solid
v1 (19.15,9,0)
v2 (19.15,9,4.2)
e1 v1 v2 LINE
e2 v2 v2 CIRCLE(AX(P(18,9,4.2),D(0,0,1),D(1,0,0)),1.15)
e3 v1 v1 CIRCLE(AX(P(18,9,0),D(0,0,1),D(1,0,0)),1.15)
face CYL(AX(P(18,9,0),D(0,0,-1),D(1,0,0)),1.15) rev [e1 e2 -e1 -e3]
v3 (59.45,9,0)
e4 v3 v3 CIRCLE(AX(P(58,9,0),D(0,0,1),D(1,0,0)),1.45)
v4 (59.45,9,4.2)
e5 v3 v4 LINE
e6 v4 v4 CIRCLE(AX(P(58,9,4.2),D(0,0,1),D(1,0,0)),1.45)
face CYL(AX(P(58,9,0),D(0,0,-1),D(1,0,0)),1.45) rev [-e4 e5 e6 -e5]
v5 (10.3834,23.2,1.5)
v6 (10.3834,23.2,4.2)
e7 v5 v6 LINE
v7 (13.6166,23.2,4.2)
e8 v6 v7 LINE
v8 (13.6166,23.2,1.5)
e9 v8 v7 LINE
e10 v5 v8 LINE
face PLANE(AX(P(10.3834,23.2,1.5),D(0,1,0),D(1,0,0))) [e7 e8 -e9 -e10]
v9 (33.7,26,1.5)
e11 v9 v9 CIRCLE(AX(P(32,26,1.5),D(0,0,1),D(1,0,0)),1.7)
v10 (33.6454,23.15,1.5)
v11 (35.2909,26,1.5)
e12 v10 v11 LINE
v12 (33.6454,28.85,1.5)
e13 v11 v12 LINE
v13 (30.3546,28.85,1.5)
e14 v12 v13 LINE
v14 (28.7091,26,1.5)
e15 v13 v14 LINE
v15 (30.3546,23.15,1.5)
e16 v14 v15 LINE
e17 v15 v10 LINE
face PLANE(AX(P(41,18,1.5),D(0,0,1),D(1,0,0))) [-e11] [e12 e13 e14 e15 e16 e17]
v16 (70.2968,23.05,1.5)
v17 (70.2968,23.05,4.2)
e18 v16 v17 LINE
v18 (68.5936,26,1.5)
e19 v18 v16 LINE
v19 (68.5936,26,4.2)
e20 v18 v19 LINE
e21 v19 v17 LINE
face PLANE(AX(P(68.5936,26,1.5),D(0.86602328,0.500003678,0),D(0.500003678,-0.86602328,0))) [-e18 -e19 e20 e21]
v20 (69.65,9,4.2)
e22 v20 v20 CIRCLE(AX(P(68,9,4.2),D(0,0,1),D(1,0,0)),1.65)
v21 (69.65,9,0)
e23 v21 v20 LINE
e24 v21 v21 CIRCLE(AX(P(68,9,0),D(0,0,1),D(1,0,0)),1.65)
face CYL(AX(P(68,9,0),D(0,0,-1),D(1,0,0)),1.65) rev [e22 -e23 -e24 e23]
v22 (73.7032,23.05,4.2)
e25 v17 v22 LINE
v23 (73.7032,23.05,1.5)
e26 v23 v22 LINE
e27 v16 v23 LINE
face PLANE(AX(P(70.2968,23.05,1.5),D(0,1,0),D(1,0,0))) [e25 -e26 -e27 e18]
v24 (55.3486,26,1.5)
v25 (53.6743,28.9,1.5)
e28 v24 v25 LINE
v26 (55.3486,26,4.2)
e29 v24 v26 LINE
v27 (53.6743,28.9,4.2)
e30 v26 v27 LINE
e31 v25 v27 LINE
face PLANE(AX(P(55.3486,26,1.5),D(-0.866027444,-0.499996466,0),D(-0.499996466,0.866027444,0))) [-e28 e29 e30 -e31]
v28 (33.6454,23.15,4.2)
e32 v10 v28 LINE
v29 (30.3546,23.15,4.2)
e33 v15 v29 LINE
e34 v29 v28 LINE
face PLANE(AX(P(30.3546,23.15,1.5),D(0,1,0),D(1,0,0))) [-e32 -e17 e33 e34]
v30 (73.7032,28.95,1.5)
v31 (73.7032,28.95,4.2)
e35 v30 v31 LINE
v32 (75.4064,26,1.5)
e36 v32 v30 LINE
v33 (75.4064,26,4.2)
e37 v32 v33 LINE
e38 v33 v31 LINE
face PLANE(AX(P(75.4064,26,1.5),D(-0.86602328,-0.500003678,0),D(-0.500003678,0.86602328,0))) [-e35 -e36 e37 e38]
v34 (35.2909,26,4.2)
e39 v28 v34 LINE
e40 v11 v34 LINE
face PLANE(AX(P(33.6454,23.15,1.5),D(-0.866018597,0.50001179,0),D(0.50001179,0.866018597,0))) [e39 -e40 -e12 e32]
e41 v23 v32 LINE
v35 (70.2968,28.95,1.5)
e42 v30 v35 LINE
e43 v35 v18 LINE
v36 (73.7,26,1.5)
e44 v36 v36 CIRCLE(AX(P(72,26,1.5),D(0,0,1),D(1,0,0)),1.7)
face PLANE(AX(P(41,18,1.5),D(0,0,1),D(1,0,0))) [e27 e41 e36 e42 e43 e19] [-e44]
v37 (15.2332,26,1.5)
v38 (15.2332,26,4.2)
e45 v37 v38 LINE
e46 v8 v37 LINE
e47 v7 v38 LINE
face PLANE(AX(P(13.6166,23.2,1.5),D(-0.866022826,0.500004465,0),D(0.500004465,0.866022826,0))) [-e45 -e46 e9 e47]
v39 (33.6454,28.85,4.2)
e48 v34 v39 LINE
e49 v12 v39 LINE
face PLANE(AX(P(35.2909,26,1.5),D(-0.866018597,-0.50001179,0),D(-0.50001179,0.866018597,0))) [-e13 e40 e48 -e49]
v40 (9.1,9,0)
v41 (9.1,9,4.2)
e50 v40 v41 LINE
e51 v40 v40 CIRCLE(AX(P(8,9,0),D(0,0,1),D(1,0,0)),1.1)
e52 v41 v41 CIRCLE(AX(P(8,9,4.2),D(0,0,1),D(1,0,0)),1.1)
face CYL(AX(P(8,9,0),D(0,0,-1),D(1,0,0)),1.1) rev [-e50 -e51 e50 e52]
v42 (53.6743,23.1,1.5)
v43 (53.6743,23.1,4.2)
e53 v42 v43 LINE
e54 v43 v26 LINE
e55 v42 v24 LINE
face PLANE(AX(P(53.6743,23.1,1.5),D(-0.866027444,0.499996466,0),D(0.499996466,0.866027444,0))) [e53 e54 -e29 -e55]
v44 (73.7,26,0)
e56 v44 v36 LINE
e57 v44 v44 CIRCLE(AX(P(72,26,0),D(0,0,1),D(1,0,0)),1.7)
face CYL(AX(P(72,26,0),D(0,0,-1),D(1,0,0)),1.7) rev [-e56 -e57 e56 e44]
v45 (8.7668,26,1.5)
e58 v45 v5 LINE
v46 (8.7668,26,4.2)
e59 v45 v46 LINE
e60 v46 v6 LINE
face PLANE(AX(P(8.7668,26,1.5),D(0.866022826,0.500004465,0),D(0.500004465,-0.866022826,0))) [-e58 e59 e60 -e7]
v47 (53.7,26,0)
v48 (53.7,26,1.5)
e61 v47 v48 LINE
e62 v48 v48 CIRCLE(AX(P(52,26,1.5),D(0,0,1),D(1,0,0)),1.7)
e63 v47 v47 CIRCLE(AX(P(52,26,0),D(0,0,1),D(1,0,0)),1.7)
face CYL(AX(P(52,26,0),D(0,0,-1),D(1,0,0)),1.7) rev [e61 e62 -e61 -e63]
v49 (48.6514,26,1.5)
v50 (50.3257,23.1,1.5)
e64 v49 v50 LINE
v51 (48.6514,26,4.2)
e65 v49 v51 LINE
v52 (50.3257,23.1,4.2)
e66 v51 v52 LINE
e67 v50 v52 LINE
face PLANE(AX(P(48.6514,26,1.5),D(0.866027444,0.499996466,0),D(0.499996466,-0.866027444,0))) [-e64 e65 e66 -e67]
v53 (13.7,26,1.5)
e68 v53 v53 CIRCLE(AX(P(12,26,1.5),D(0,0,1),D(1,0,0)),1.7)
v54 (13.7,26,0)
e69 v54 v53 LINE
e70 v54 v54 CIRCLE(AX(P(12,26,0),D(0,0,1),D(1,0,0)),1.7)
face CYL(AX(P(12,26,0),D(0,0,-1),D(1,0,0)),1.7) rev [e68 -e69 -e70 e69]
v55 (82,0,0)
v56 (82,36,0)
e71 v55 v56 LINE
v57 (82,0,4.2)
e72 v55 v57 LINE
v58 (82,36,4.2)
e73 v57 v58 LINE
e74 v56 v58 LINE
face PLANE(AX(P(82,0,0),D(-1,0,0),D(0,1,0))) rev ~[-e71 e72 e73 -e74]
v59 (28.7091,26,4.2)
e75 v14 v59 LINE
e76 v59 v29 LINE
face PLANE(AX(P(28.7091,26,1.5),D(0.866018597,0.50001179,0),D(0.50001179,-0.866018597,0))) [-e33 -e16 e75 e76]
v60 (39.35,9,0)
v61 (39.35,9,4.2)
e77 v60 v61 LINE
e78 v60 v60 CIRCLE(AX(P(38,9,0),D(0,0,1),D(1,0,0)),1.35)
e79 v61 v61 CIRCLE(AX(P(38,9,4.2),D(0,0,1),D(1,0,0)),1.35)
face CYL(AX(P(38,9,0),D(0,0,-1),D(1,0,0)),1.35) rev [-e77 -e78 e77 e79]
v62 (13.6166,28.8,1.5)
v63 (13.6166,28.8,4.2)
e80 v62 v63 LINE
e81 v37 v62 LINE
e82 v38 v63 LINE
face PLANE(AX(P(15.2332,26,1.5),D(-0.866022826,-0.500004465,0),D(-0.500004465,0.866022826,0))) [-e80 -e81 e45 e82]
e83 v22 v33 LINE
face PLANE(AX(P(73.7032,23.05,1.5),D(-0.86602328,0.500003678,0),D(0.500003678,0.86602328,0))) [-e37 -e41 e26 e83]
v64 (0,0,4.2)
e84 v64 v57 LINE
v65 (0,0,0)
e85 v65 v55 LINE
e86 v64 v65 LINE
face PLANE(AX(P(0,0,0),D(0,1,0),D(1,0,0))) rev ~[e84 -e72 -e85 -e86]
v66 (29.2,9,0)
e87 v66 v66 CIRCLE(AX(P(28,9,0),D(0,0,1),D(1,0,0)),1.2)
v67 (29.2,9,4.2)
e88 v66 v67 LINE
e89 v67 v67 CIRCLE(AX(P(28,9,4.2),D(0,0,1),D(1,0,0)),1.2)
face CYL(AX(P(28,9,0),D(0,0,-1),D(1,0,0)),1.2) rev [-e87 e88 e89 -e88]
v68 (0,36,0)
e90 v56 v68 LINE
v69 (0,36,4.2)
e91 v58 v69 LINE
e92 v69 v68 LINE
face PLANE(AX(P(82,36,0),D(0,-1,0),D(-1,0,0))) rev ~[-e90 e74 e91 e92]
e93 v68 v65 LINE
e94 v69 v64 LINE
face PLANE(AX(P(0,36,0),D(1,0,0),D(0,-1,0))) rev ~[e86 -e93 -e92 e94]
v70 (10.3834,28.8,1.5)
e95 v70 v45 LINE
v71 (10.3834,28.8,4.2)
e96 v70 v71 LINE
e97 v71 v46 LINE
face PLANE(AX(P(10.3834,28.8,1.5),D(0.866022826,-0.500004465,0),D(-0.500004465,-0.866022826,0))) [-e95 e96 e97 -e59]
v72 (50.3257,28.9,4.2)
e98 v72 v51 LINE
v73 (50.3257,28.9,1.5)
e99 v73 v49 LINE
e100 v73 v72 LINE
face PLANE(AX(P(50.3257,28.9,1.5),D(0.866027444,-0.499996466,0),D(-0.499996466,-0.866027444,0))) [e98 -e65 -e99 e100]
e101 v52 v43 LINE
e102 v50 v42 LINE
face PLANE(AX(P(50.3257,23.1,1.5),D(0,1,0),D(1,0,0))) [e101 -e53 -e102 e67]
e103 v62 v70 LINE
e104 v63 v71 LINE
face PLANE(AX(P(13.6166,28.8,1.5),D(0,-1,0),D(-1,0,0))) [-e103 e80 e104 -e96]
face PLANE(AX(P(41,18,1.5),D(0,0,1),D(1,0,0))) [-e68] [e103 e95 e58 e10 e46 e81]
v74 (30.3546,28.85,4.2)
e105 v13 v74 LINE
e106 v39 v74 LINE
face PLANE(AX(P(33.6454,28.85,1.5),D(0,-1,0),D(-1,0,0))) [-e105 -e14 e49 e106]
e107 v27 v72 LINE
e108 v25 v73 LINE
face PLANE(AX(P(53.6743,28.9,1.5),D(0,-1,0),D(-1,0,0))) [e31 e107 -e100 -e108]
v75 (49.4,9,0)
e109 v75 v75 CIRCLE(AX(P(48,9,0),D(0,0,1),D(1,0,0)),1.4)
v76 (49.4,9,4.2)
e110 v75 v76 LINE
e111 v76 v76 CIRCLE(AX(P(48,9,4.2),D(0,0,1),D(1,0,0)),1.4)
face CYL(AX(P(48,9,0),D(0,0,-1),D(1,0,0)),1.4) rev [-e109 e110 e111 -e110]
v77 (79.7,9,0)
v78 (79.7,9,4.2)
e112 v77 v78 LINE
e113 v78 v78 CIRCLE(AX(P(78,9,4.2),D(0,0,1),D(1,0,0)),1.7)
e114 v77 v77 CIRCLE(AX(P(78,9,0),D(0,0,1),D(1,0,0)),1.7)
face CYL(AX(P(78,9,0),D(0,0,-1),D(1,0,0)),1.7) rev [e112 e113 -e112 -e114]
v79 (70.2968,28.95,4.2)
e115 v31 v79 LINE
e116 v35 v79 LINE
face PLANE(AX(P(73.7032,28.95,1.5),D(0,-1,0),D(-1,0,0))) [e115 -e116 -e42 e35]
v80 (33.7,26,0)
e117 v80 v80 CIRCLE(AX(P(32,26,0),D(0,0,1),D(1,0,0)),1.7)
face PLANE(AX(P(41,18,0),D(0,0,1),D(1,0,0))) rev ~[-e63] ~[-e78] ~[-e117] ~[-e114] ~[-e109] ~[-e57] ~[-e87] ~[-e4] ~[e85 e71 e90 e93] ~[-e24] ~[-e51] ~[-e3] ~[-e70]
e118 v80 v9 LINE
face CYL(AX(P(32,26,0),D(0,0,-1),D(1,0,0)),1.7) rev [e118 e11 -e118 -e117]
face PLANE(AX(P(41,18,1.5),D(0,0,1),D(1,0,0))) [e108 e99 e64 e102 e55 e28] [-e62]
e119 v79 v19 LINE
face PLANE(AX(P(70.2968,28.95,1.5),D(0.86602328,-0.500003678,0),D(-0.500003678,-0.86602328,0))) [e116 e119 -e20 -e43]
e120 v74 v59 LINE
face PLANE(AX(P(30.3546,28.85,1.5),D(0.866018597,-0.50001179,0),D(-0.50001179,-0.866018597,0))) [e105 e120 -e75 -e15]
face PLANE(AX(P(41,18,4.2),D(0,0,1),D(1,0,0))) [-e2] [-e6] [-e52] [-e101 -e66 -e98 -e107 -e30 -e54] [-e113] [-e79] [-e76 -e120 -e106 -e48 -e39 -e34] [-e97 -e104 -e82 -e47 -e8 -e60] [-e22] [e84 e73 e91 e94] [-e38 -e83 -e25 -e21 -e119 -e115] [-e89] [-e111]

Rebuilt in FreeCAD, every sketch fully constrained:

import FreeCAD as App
import Part
import Sketcher

V = App.Vector
Q = App.Units.Quantity


def add_polygon(sketch, points):
    """Adds a closed chain of lines whose ends are joined by coincident constraints."""
    first, n = sketch.GeometryCount, len(points)
    for a, b in zip(points, points[1:] + points[:1]):
        sketch.addGeometry(Part.LineSegment(App.Vector(*a, 0), App.Vector(*b, 0)), False)
    for i in range(n):
        sketch.addConstraint(Sketcher.Constraint("Coincident", first + i, 2, first + (i + 1) % n, 1))

doc = App.newDocument("Part")
params = doc.addObject("Spreadsheet::Sheet", "Params")
for row, (alias, value) in enumerate([
    ("sketch1_diameter", "2.2 mm"),
    ("sketch1_diameter2", "2.3 mm"),
    ("sketch1_diameter3", "2.4 mm"),
    ("sketch1_diameter4", "2.7 mm"),
    ("sketch1_diameter5", "2.8 mm"),
    ("pad1_length", "1.5 mm"),
    ("sketch2_diameter", "2.2 mm"),
    ("sketch2_diameter2", "2.3 mm"),
    ("sketch2_diameter3", "2.4 mm"),
    ("sketch2_diameter4", "2.7 mm"),
    ("sketch2_diameter5", "2.8 mm"),
    ("pad2_length", "2.7 mm"),
], start=1):
    params.set(f"A{row}", alias)
    params.set(f"B{row}", "=" + value)
    params.setAlias(f"B{row}", alias)

body = doc.addObject("PartDesign::Body", "Body")

# Sketch on XY plane
sketch1 = doc.addObject("Sketcher::SketchObject", "Sketch")
body.addObject(sketch1)
sketch1.AttachmentSupport = (doc.XY_Plane, [""])
sketch1.MapMode = "FlatFace"
add_polygon(sketch1, [(0, 36), (0, 0), (82, 0), (82, 36)])  # lines 0-3
sketch1.addGeometry(Part.Circle(V(8, 9, 0), V(0, 0, 1), 1.1), False)  # 4
sketch1.addGeometry(Part.Circle(V(18, 9, 0), V(0, 0, 1), 1.1), False)  # 5
sketch1.addGeometry(Part.Circle(V(28, 9, 0), V(0, 0, 1), 1.2), False)  # 6
sketch1.addGeometry(Part.Circle(V(38, 9, 0), V(0, 0, 1), 1.4), False)  # 7
sketch1.addGeometry(Part.Circle(V(48, 9, 0), V(0, 0, 1), 1.4), False)  # 8
sketch1.addGeometry(Part.Circle(V(58, 9, 0), V(0, 0, 1), 1.4), False)  # 9
sketch1.addGeometry(Part.Circle(V(68, 9, 0), V(0, 0, 1), 1.6), False)  # 10
sketch1.addGeometry(Part.Circle(V(78, 9, 0), V(0, 0, 1), 1.7), False)  # 11
sketch1.addGeometry(Part.Circle(V(12, 26, 0), V(0, 0, 1), 1.7), False)  # 12
sketch1.addGeometry(Part.Circle(V(32, 26, 0), V(0, 0, 1), 1.7), False)  # 13
sketch1.addGeometry(Part.Circle(V(52, 26, 0), V(0, 0, 1), 1.7), False)  # 14
sketch1.addGeometry(Part.Circle(V(72, 26, 0), V(0, 0, 1), 1.7), False)  # 15
sketch1.addConstraint([
    Sketcher.Constraint("Vertical", 0),
    Sketcher.Constraint("Horizontal", 1),
    Sketcher.Constraint("Vertical", 2),
    Sketcher.Constraint("Horizontal", 3),
    Sketcher.Constraint("Coincident", 0, 2, -1, 1),
    Sketcher.Constraint("Equal", 11, 12),
    Sketcher.Constraint("Equal", 12, 13),
    Sketcher.Constraint("Equal", 13, 14),
    Sketcher.Constraint("Equal", 14, 15),
    Sketcher.Constraint("Horizontal", 4, 3, 5, 3),
    Sketcher.Constraint("Horizontal", 5, 3, 6, 3),
    Sketcher.Constraint("Horizontal", 6, 3, 7, 3),
    Sketcher.Constraint("Horizontal", 7, 3, 8, 3),
    Sketcher.Constraint("Horizontal", 8, 3, 9, 3),
    Sketcher.Constraint("Horizontal", 9, 3, 10, 3),
    Sketcher.Constraint("Horizontal", 10, 3, 11, 3),
    Sketcher.Constraint("Horizontal", 12, 3, 13, 3),
    Sketcher.Constraint("Horizontal", 13, 3, 14, 3),
    Sketcher.Constraint("Horizontal", 14, 3, 15, 3),
    Sketcher.Constraint("Diameter", 4, Q("2.2 mm")),
    Sketcher.Constraint("Diameter", 5, Q("2.3 mm")),
    Sketcher.Constraint("Diameter", 6, Q("2.4 mm")),
    Sketcher.Constraint("Diameter", 7, Q("2.7 mm")),
    Sketcher.Constraint("Diameter", 8, Q("2.8 mm")),
    Sketcher.Constraint("Diameter", 9, Q("2.9 mm")),
    Sketcher.Constraint("Diameter", 10, Q("3.3 mm")),
    Sketcher.Constraint("Diameter", 11, Q("3.4 mm")),
    Sketcher.Constraint("DistanceX", 1, 1, 1, 2, Q("82 mm")),
    Sketcher.Constraint("DistanceY", 0, 2, 0, 1, Q("36 mm")),
    Sketcher.Constraint("DistanceX", -1, 1, 4, 3, Q("8 mm")),
    Sketcher.Constraint("DistanceY", -1, 1, 4, 3, Q("9 mm")),
    Sketcher.Constraint("DistanceX", -1, 1, 5, 3, Q("18 mm")),
    Sketcher.Constraint("DistanceX", -1, 1, 6, 3, Q("28 mm")),
    Sketcher.Constraint("DistanceX", -1, 1, 7, 3, Q("38 mm")),
    Sketcher.Constraint("DistanceX", -1, 1, 8, 3, Q("48 mm")),
    Sketcher.Constraint("DistanceX", -1, 1, 9, 3, Q("58 mm")),
    Sketcher.Constraint("DistanceX", -1, 1, 10, 3, Q("68 mm")),
    Sketcher.Constraint("DistanceX", -1, 1, 11, 3, Q("78 mm")),
    Sketcher.Constraint("DistanceX", -1, 1, 12, 3, Q("12 mm")),
    Sketcher.Constraint("DistanceY", -1, 1, 12, 3, Q("26 mm")),
    Sketcher.Constraint("DistanceX", -1, 1, 13, 3, Q("32 mm")),
    Sketcher.Constraint("DistanceX", -1, 1, 14, 3, Q("52 mm")),
    Sketcher.Constraint("DistanceX", -1, 1, 15, 3, Q("72 mm")),
])
sketch1.setExpression("Constraints[23]", "Params.sketch1_diameter")
sketch1.setExpression("Constraints[24]", "Params.sketch1_diameter2")
sketch1.setExpression("Constraints[25]", "Params.sketch1_diameter3")
sketch1.setExpression("Constraints[26]", "Params.sketch1_diameter4")
sketch1.setExpression("Constraints[27]", "Params.sketch1_diameter5")
pad1 = doc.addObject("PartDesign::Pad", "Pad")
body.addObject(pad1)
pad1.Profile = sketch1
pad1.setExpression("Length", "Params.pad1_length")

# Sketch on XY plane
sketch2 = doc.addObject("Sketcher::SketchObject", "Sketch001")
body.addObject(sketch2)
sketch2.AttachmentSupport = (doc.XY_Plane, [""])
sketch2.MapMode = "FlatFace"
sketch2.AttachmentOffset = App.Placement(V(0, 0, 1.5), App.Rotation())
add_polygon(sketch2, [(0, 36), (0, 0), (82, 0), (82, 36)])  # lines 0-3
sketch2.addGeometry(Part.Circle(V(8, 9, 0), V(0, 0, 1), 1.1), False)  # 4
sketch2.addGeometry(Part.Circle(V(18, 9, 0), V(0, 0, 1), 1.1), False)  # 5
sketch2.addGeometry(Part.Circle(V(28, 9, 0), V(0, 0, 1), 1.2), False)  # 6
sketch2.addGeometry(Part.Circle(V(38, 9, 0), V(0, 0, 1), 1.4), False)  # 7
sketch2.addGeometry(Part.Circle(V(48, 9, 0), V(0, 0, 1), 1.4), False)  # 8
sketch2.addGeometry(Part.Circle(V(58, 9, 0), V(0, 0, 1), 1.4), False)  # 9
sketch2.addGeometry(Part.Circle(V(68, 9, 0), V(0, 0, 1), 1.6), False)  # 10
sketch2.addGeometry(Part.Circle(V(78, 9, 0), V(0, 0, 1), 1.7), False)  # 11
add_polygon(sketch2, [(13.6, 28.8), (15.2, 26), (13.6, 23.2), (10.4, 23.2), (8.8, 26), (10.4, 28.8)])  # lines 12-17
add_polygon(sketch2, [(33.6, 28.9), (35.3, 26), (33.6, 23.1), (30.4, 23.1), (28.7, 26), (30.4, 28.9)])  # lines 18-23
add_polygon(sketch2, [(53.7, 28.9), (55.3, 26), (53.7, 23.1), (50.3, 23.1), (48.7, 26), (50.3, 28.9)])  # lines 24-29
add_polygon(sketch2, [(73.7, 28.9), (75.4, 26), (73.7, 23.1), (70.3, 23.1), (68.6, 26), (70.3, 28.9)])  # lines 30-35
sketch2.addConstraint([
    Sketcher.Constraint("Vertical", 0),
    Sketcher.Constraint("Horizontal", 1),
    Sketcher.Constraint("Vertical", 2),
    Sketcher.Constraint("Horizontal", 3),
    Sketcher.Constraint("Horizontal", 14),
    Sketcher.Constraint("Horizontal", 17),
    Sketcher.Constraint("Horizontal", 20),
    Sketcher.Constraint("Horizontal", 23),
    Sketcher.Constraint("Horizontal", 26),
    Sketcher.Constraint("Horizontal", 29),
    Sketcher.Constraint("Horizontal", 32),
    Sketcher.Constraint("Horizontal", 35),
    Sketcher.Constraint("Coincident", 0, 2, -1, 1),
    Sketcher.Constraint("Parallel", 12, 15),
    Sketcher.Constraint("Parallel", 13, 16),
    Sketcher.Constraint("Parallel", 15, 18),
    Sketcher.Constraint("Parallel", 16, 19),
    Sketcher.Constraint("Parallel", 18, 21),
    Sketcher.Constraint("Parallel", 19, 22),
    Sketcher.Constraint("Parallel", 21, 24),
    Sketcher.Constraint("Parallel", 22, 25),
    Sketcher.Constraint("Parallel", 24, 27),
    Sketcher.Constraint("Parallel", 25, 28),
    Sketcher.Constraint("Parallel", 27, 30),
    Sketcher.Constraint("Parallel", 28, 31),
    Sketcher.Constraint("Parallel", 30, 33),
    Sketcher.Constraint("Parallel", 31, 34),
    Sketcher.Constraint("Horizontal", 4, 3, 5, 3),
    Sketcher.Constraint("Horizontal", 5, 3, 6, 3),
    Sketcher.Constraint("Horizontal", 6, 3, 7, 3),
    Sketcher.Constraint("Horizontal", 7, 3, 8, 3),
    Sketcher.Constraint("Horizontal", 8, 3, 9, 3),
    Sketcher.Constraint("Horizontal", 9, 3, 10, 3),
    Sketcher.Constraint("Horizontal", 10, 3, 11, 3),
    Sketcher.Constraint("Horizontal", 12, 2, 15, 2),
    Sketcher.Constraint("Horizontal", 15, 2, 18, 2),
    Sketcher.Constraint("Horizontal", 18, 2, 21, 2),
    Sketcher.Constraint("Horizontal", 21, 2, 24, 2),
    Sketcher.Constraint("Horizontal", 24, 2, 27, 2),
    Sketcher.Constraint("Horizontal", 27, 2, 30, 2),
    Sketcher.Constraint("Horizontal", 30, 2, 33, 2),
    Sketcher.Constraint("Vertical", 14, 2, 16, 2),
    Sketcher.Constraint("Vertical", 13, 2, 17, 2),
    Sketcher.Constraint("Vertical", 20, 2, 22, 2),
    Sketcher.Constraint("Vertical", 26, 2, 28, 2),
    Sketcher.Constraint("Vertical", 32, 2, 34, 2),
    Sketcher.Constraint("Diameter", 4, Q("2.2 mm")),
    Sketcher.Constraint("Diameter", 5, Q("2.3 mm")),
    Sketcher.Constraint("Diameter", 6, Q("2.4 mm")),
    Sketcher.Constraint("Diameter", 7, Q("2.7 mm")),
    Sketcher.Constraint("Diameter", 8, Q("2.8 mm")),
    Sketcher.Constraint("Diameter", 9, Q("2.9 mm")),
    Sketcher.Constraint("Diameter", 10, Q("3.3 mm")),
    Sketcher.Constraint("Diameter", 11, Q("3.4 mm")),
    Sketcher.Constraint("DistanceX", 1, 1, 1, 2, Q("82 mm")),
    Sketcher.Constraint("DistanceY", 0, 2, 0, 1, Q("36 mm")),
    Sketcher.Constraint("Angle", 12, Q("-59.9997 deg")),
    Sketcher.Constraint("DistanceX", -1, 1, 4, 3, Q("8 mm")),
    Sketcher.Constraint("DistanceY", -1, 1, 4, 3, Q("9 mm")),
    Sketcher.Constraint("DistanceX", -1, 1, 5, 3, Q("18 mm")),
    Sketcher.Constraint("DistanceX", -1, 1, 6, 3, Q("28 mm")),
    Sketcher.Constraint("DistanceX", -1, 1, 7, 3, Q("38 mm")),
    Sketcher.Constraint("DistanceX", -1, 1, 8, 3, Q("48 mm")),
    Sketcher.Constraint("DistanceX", -1, 1, 9, 3, Q("58 mm")),
    Sketcher.Constraint("DistanceX", -1, 1, 10, 3, Q("68 mm")),
    Sketcher.Constraint("DistanceX", -1, 1, 11, 3, Q("78 mm")),
    Sketcher.Constraint("DistanceY", -1, 1, 12, 2, Q("26 mm")),
    Sketcher.Constraint("DistanceY", -1, 1, 13, 2, Q("23.2 mm")),
    Sketcher.Constraint("DistanceY", -1, 1, 25, 2, Q("23.1 mm")),
    Sketcher.Constraint("DistanceY", 20, 2, 22, 2, Q("5.7 mm")),
    Sketcher.Constraint("DistanceY", 32, 2, 34, 2, Q("5.9 mm")),
    Sketcher.Constraint("DistanceX", 14, 2, 14, 1, Q("3.2332 mm")),
    Sketcher.Constraint("DistanceX", 20, 2, 20, 1, Q("3.2908 mm")),
    Sketcher.Constraint("DistanceX", 26, 2, 26, 1, Q("3.3486 mm")),
    Sketcher.Constraint("DistanceX", 32, 2, 32, 1, Q("3.4064 mm")),
    Sketcher.Constraint("DistanceX", -1, 1, 18, 2, Q("35.291 mm")),
    Sketcher.Constraint("DistanceX", 12, 2, 21, 2, Q("13.476 mm")),
    Sketcher.Constraint("DistanceX", 19, 2, 25, 2, Q("20.029 mm")),
    Sketcher.Constraint("DistanceX", 25, 2, 30, 2, Q("21.732 mm")),
])
sketch2.setExpression("Constraints[74]", "Params.sketch2_diameter")
sketch2.setExpression("Constraints[75]", "Params.sketch2_diameter2")
sketch2.setExpression("Constraints[76]", "Params.sketch2_diameter3")
sketch2.setExpression("Constraints[77]", "Params.sketch2_diameter4")
sketch2.setExpression("Constraints[78]", "Params.sketch2_diameter5")
pad2 = doc.addObject("PartDesign::Pad", "Pad001")
body.addObject(pad2)
pad2.Profile = sketch2
pad2.setExpression("Length", "Params.pad2_length")

doc.recompute()
